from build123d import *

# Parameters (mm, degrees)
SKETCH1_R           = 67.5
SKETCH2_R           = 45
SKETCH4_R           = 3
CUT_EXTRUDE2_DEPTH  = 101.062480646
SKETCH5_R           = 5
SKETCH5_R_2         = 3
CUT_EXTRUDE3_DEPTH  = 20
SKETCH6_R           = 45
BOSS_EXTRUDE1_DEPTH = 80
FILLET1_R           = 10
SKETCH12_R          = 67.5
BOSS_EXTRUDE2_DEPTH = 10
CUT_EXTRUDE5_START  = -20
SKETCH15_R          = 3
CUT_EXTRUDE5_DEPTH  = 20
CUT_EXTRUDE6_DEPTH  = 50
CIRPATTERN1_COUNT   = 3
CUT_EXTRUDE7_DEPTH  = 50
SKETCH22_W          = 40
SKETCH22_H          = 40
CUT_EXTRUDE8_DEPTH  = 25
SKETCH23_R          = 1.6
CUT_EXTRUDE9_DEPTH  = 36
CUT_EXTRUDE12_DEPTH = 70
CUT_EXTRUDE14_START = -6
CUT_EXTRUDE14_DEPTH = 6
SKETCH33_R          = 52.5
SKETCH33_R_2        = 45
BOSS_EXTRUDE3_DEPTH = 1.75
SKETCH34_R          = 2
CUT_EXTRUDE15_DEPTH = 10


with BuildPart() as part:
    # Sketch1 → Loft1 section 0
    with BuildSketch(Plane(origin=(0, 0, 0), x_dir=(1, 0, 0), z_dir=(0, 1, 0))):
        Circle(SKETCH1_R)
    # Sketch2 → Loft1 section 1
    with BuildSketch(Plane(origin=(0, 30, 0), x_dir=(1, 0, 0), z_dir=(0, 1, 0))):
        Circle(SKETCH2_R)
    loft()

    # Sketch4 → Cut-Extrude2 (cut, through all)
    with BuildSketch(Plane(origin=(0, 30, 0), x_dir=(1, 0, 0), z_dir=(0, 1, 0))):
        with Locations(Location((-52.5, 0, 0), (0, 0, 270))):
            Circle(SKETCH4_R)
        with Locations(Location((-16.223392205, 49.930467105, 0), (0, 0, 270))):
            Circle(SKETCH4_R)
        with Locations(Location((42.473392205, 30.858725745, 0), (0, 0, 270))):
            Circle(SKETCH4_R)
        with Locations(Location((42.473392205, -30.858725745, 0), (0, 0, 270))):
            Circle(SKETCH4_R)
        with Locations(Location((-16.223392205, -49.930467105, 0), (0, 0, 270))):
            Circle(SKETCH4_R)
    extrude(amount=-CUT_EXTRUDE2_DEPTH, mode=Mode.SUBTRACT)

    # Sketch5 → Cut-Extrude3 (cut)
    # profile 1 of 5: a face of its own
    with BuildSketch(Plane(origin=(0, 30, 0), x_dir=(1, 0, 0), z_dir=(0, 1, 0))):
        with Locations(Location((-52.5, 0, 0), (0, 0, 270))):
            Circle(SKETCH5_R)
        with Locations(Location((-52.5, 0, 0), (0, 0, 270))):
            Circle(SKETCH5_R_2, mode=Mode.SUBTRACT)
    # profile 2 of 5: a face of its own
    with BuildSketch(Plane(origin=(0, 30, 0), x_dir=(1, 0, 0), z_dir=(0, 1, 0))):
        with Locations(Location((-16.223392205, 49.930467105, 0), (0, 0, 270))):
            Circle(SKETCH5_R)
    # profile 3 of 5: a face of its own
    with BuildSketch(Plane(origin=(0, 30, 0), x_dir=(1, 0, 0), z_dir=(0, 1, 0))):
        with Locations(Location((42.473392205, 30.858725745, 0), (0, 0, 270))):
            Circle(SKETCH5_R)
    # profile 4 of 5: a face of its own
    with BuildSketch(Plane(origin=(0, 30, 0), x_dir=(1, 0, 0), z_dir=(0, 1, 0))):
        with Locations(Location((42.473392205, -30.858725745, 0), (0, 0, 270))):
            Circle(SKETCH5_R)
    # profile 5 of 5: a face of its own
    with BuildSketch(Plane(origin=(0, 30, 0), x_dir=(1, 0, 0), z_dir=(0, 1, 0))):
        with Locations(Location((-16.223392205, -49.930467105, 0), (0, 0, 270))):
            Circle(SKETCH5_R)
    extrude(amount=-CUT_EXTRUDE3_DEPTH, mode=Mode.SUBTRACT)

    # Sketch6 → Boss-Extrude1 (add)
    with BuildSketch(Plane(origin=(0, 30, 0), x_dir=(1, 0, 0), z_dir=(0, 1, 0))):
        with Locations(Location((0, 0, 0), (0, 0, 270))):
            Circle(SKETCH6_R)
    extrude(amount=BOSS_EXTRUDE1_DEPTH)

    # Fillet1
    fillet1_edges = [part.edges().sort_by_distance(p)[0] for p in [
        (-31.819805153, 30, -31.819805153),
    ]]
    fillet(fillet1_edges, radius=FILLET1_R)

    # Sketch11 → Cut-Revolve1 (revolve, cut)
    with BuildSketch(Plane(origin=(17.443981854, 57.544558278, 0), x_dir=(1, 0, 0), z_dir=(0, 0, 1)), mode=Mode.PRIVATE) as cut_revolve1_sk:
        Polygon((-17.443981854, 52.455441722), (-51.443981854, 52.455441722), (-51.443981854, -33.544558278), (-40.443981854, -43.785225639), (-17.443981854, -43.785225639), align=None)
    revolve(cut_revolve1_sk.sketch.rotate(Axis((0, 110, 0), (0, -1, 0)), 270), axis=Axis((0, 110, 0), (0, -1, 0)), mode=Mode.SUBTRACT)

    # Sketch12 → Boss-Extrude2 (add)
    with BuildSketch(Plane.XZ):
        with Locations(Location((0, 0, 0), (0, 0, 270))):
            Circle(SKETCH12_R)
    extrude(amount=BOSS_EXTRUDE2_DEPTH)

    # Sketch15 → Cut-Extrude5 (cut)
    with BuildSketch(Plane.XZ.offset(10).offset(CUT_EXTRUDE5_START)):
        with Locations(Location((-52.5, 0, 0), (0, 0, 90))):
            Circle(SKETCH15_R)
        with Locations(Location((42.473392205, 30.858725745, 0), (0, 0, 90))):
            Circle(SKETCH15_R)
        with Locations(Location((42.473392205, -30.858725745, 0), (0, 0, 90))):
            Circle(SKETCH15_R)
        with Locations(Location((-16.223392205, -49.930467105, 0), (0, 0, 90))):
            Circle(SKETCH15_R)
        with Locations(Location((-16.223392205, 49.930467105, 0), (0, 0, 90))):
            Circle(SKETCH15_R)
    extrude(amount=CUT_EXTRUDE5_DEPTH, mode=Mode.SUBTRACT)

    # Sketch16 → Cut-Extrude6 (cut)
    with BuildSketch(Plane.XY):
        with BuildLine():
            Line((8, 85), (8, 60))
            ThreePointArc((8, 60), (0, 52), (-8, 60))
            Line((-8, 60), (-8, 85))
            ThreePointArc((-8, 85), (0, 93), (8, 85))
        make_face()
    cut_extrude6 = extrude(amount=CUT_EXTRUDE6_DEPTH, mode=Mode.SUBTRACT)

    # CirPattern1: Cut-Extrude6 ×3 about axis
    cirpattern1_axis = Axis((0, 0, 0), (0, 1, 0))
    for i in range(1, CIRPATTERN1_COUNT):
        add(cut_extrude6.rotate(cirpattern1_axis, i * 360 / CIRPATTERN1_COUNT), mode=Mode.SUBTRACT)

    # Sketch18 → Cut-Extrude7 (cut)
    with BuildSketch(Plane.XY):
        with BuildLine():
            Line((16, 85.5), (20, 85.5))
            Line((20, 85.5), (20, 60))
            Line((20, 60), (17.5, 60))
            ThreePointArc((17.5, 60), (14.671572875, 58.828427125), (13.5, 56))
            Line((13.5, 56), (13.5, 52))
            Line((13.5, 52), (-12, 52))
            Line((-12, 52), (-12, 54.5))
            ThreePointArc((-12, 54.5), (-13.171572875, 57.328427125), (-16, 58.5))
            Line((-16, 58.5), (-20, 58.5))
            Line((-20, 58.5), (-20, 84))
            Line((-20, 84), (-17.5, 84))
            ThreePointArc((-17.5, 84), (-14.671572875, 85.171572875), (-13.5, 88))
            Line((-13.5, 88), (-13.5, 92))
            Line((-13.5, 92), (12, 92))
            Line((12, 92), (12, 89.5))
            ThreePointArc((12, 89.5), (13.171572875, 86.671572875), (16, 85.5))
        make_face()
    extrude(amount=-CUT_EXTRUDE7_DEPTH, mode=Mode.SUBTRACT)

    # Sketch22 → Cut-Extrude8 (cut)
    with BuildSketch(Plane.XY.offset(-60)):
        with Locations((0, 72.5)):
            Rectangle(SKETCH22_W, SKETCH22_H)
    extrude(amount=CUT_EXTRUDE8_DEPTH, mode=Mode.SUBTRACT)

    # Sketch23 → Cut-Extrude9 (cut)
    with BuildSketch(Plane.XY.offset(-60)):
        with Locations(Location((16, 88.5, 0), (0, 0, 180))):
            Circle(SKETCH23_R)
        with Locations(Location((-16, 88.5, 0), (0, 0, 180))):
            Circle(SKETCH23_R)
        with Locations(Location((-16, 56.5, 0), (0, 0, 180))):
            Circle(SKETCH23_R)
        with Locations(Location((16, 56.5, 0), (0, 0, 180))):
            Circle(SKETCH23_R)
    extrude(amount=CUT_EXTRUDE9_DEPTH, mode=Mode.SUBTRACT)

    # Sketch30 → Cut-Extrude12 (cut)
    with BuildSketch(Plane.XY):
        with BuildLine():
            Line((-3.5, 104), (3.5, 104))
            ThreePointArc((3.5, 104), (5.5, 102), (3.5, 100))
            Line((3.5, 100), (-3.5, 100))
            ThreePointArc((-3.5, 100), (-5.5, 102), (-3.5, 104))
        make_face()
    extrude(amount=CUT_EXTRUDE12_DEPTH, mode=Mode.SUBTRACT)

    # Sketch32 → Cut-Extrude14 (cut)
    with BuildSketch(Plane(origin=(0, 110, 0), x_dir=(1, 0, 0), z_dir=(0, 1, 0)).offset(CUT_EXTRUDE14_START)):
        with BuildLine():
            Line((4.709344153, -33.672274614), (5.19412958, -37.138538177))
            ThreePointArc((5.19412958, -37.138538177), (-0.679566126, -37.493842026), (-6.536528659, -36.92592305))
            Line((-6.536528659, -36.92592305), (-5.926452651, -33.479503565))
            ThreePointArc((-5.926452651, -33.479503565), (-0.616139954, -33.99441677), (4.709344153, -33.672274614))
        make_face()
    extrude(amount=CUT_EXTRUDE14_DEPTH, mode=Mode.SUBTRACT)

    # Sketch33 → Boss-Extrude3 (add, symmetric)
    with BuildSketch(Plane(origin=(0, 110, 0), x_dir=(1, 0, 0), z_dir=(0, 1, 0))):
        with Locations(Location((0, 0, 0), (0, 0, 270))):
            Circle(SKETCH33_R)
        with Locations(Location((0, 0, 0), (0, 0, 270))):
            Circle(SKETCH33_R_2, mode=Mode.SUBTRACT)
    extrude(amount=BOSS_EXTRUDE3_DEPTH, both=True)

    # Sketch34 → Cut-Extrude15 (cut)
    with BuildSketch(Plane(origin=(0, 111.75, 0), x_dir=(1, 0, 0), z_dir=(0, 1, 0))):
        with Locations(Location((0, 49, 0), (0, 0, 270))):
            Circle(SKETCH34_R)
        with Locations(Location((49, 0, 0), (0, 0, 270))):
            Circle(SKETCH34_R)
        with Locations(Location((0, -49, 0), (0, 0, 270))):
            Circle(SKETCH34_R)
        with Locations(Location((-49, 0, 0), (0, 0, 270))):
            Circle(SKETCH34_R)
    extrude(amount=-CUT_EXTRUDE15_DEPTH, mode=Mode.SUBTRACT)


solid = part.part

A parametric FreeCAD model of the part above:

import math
import FreeCAD as App
import Part
import Sketcher
Q = App.Units.Quantity


def edges_at(feature, points):
    """Names of the edges that pass closest to the given points."""
    edges = feature.Shape.Edges
    near = lambda p: min(range(len(edges)), key=lambda i: edges[i].distToShape(Part.Vertex(*p))[0])
    return sorted({f"Edge{near(p) + 1}" for p in points})

doc = App.newDocument("Part")
body = doc.addObject("PartDesign::Body", "Body")

# Sketch on XZ plane
sketch1 = body.newObject("Sketcher::SketchObject", "Sketch")
sketch1.AttachmentSupport = (doc.getObject("XZ_Plane"), [""])
sketch1.MapMode = "FlatFace"
sketch1.addGeometry(Part.Circle(App.Vector(0, 0, 0), App.Vector(0, 0, 1), 68), False)
sketch1.addConstraint(Sketcher.Constraint("Coincident", 0, 3, -1, 1))
sketch1.addConstraint(Sketcher.Constraint("Diameter", 0, Q("135 mm")))

# Sketch on XZ plane
sketch2 = body.newObject("Sketcher::SketchObject", "Sketch001")
sketch2.AttachmentSupport = (doc.getObject("XZ_Plane"), [""])
sketch2.MapMode = "FlatFace"
sketch2.AttachmentOffset = App.Placement(App.Vector(0, 0, -30), App.Rotation())
sketch2.addGeometry(Part.Circle(App.Vector(0, 0, 0), App.Vector(0, 0, 1), 45), False)
sketch2.addConstraint(Sketcher.Constraint("Coincident", 0, 3, -1, 1))
sketch2.addConstraint(Sketcher.Constraint("Diameter", 0, Q("90 mm")))

additiveloft = body.newObject("PartDesign::AdditiveLoft", "AdditiveLoft")
additiveloft.Profile = sketch1
additiveloft.Sections = [sketch2]

# Sketch on XZ plane
sketch3 = body.newObject("Sketcher::SketchObject", "Sketch002")
sketch3.AttachmentSupport = (doc.getObject("XZ_Plane"), [""])
sketch3.MapMode = "FlatFace"
sketch3.AttachmentOffset = App.Placement(App.Vector(0, 0, -30), App.Rotation())
sketch3.addGeometry(Part.Circle(App.Vector(-52.5, 0, 0), App.Vector(0, 0, 1), 3), False)
sketch3.addGeometry(Part.Circle(App.Vector(-16.2, -49.9, 0), App.Vector(0, 0, 1), 3), False)
sketch3.addGeometry(Part.Circle(App.Vector(42.5, -30.9, 0), App.Vector(0, 0, 1), 3), False)
sketch3.addGeometry(Part.Circle(App.Vector(42.5, 30.9, 0), App.Vector(0, 0, 1), 3), False)
sketch3.addGeometry(Part.Circle(App.Vector(-16.2, 49.9, 0), App.Vector(0, 0, 1), 3), False)
sketch3.addConstraint(Sketcher.Constraint("Equal", 0, 1))
sketch3.addConstraint(Sketcher.Constraint("Equal", 1, 2))
sketch3.addConstraint(Sketcher.Constraint("Equal", 2, 3))
sketch3.addConstraint(Sketcher.Constraint("Equal", 3, 4))
sketch3.addConstraint(Sketcher.Constraint("Symmetric", 2, 3, 3, 3, -1))
sketch3.addConstraint(Sketcher.Constraint("Symmetric", 1, 3, 4, 3, -1))
sketch3.addConstraint(Sketcher.Constraint("PointOnObject", 0, 3, -1))
sketch3.addConstraint(Sketcher.Constraint("Diameter", 0, Q("6 mm")))
sketch3.addConstraint(Sketcher.Constraint("DistanceX", 0, 3, -1, 1, Q("52.5 mm")))
sketch3.addConstraint(Sketcher.Constraint("DistanceY", 1, 3, 2, 3, Q("19.071741 mm")))
sketch3.addConstraint(Sketcher.Constraint("DistanceY", 2, 3, 3, 3, Q("61.717451 mm")))
sketch3.addConstraint(Sketcher.Constraint("DistanceX", 1, 3, -1, 1, Q("16.223392 mm")))
sketch3.addConstraint(Sketcher.Constraint("DistanceX", -1, 1, 2, 3, Q("42.473392 mm")))
pocket1 = body.newObject("PartDesign::Pocket", "Pocket")
pocket1.Profile = sketch3
pocket1.Type = "ThroughAll"
pocket1.Reversed = True

# Sketch on XZ plane
sketch4 = body.newObject("Sketcher::SketchObject", "Sketch003")
sketch4.AttachmentSupport = (doc.getObject("XZ_Plane"), [""])
sketch4.MapMode = "FlatFace"
sketch4.AttachmentOffset = App.Placement(App.Vector(0, 0, -30), App.Rotation())
sketch4.addGeometry(Part.Circle(App.Vector(-52.5, 0, 0), App.Vector(0, 0, 1), 5), False)
sketch4.addGeometry(Part.Circle(App.Vector(-52.5, 0, 0), App.Vector(0, 0, 1), 3), False)
sketch4.addGeometry(Part.Circle(App.Vector(-16.2, -49.9, 0), App.Vector(0, 0, 1), 5), False)
sketch4.addGeometry(Part.Circle(App.Vector(42.5, -30.9, 0), App.Vector(0, 0, 1), 5), False)
sketch4.addGeometry(Part.Circle(App.Vector(42.5, 30.9, 0), App.Vector(0, 0, 1), 5), False)
sketch4.addGeometry(Part.Circle(App.Vector(-16.2, 49.9, 0), App.Vector(0, 0, 1), 5), False)
sketch4.addConstraint(Sketcher.Constraint("Coincident", 1, 3, 0, 3))
sketch4.addConstraint(Sketcher.Constraint("Equal", 0, 2))
sketch4.addConstraint(Sketcher.Constraint("Equal", 2, 3))
sketch4.addConstraint(Sketcher.Constraint("Equal", 3, 4))
sketch4.addConstraint(Sketcher.Constraint("Equal", 4, 5))
sketch4.addConstraint(Sketcher.Constraint("Symmetric", 3, 3, 4, 3, -1))
sketch4.addConstraint(Sketcher.Constraint("Symmetric", 2, 3, 5, 3, -1))
sketch4.addConstraint(Sketcher.Constraint("PointOnObject", 0, 3, -1))
sketch4.addConstraint(Sketcher.Constraint("Diameter", 0, Q("10 mm")))
sketch4.addConstraint(Sketcher.Constraint("Diameter", 1, Q("6 mm")))
sketch4.addConstraint(Sketcher.Constraint("DistanceX", 0, 3, -1, 1, Q("52.5 mm")))
sketch4.addConstraint(Sketcher.Constraint("DistanceY", 2, 3, 3, 3, Q("19.071741 mm")))
sketch4.addConstraint(Sketcher.Constraint("DistanceY", 3, 3, 4, 3, Q("61.717451 mm")))
sketch4.addConstraint(Sketcher.Constraint("DistanceX", 2, 3, -1, 1, Q("16.223392 mm")))
sketch4.addConstraint(Sketcher.Constraint("DistanceX", -1, 1, 3, 3, Q("42.473392 mm")))
pocket2 = body.newObject("PartDesign::Pocket", "Pocket001")
pocket2.Profile = sketch4
pocket2.Length = 20
pocket2.Reversed = True

# Sketch on XZ plane
sketch5 = body.newObject("Sketcher::SketchObject", "Sketch004")
sketch5.AttachmentSupport = (doc.getObject("XZ_Plane"), [""])
sketch5.MapMode = "FlatFace"
sketch5.AttachmentOffset = App.Placement(App.Vector(0, 0, -30), App.Rotation())
sketch5.addGeometry(Part.Circle(App.Vector(0, 0, 0), App.Vector(0, 0, 1), 45), False)
sketch5.addConstraint(Sketcher.Constraint("Coincident", 0, 3, -1, 1))
sketch5.addConstraint(Sketcher.Constraint("Diameter", 0, Q("90 mm")))
pad1 = body.newObject("PartDesign::Pad", "Pad")
pad1.Profile = sketch5
pad1.Length = 80
pad1.Reversed = True
doc.recompute()

fillet = body.newObject("PartDesign::Fillet", "Fillet")
fillet.Base = (pad1, edges_at(pad1, [(-31.82, 30, -31.82)]))
fillet.Radius = 10

# Sketch on XY plane
sketch6 = body.newObject("Sketcher::SketchObject", "Sketch005")
sketch6.AttachmentSupport = (doc.getObject("XY_Plane"), [""])
sketch6.MapMode = "FlatFace"
sketch6.addGeometry(Part.LineSegment(App.Vector(0, 110, 0), App.Vector(-34, 110, 0)), False)
sketch6.addGeometry(Part.LineSegment(App.Vector(-34, 110, 0), App.Vector(-34, 24, 0)), False)
sketch6.addGeometry(Part.LineSegment(App.Vector(-34, 24, 0), App.Vector(-23, 14, 0)), False)
sketch6.addGeometry(Part.LineSegment(App.Vector(-23, 14, 0), App.Vector(0, 14, 0)), False)
sketch6.addGeometry(Part.LineSegment(App.Vector(0, 14, 0), App.Vector(0, 110, 0)), False)
sketch6.addConstraint(Sketcher.Constraint("Coincident", 0, 2, 1, 1))
sketch6.addConstraint(Sketcher.Constraint("Coincident", 1, 2, 2, 1))
sketch6.addConstraint(Sketcher.Constraint("Coincident", 2, 2, 3, 1))
sketch6.addConstraint(Sketcher.Constraint("Coincident", 3, 2, 4, 1))
sketch6.addConstraint(Sketcher.Constraint("Coincident", 4, 2, 0, 1))
sketch6.addConstraint(Sketcher.Constraint("Horizontal", 0))
sketch6.addConstraint(Sketcher.Constraint("Vertical", 1))
sketch6.addConstraint(Sketcher.Constraint("Horizontal", 3))
sketch6.addConstraint(Sketcher.Constraint("Vertical", 4))
sketch6.addConstraint(Sketcher.Constraint("PointOnObject", 3, 2, -2))
sketch6.addConstraint(Sketcher.Constraint("DistanceX", 0, 2, 0, 1, Q("34 mm")))
sketch6.addConstraint(Sketcher.Constraint("DistanceX", 3, 1, 3, 2, Q("23 mm")))
sketch6.addConstraint(Sketcher.Constraint("DistanceY", 1, 2, 1, 1, Q("86 mm")))
sketch6.addConstraint(Sketcher.Constraint("DistanceY", -1, 1, 0, 2, Q("110 mm")))
sketch6.addConstraint(Sketcher.Constraint("DistanceY", 4, 1, 4, 2, Q("96.240667 mm")))
groove = body.newObject("PartDesign::Groove", "Groove")
groove.Profile = sketch6
groove.ReferenceAxis = (sketch6, ["V_Axis"])
groove.Angle = 360

# Sketch on XZ plane
sketch7 = body.newObject("Sketcher::SketchObject", "Sketch006")
sketch7.AttachmentSupport = (doc.getObject("XZ_Plane"), [""])
sketch7.MapMode = "FlatFace"
sketch7.addGeometry(Part.Circle(App.Vector(0, 0, 0), App.Vector(0, 0, 1), 68), False)
sketch7.addConstraint(Sketcher.Constraint("Coincident", 0, 3, -1, 1))
sketch7.addConstraint(Sketcher.Constraint("Diameter", 0, Q("135 mm")))
pad2 = body.newObject("PartDesign::Pad", "Pad001")
pad2.Profile = sketch7
pad2.Length = 10

# Sketch on XZ plane
sketch8 = body.newObject("Sketcher::SketchObject", "Sketch007")
sketch8.AttachmentSupport = (doc.getObject("XZ_Plane"), [""])
sketch8.MapMode = "FlatFace"
sketch8.AttachmentOffset = App.Placement(App.Vector(0, 0, -10), App.Rotation())
sketch8.addGeometry(Part.Circle(App.Vector(-52.5, 0, 0), App.Vector(0, 0, 1), 3), False)
sketch8.addGeometry(Part.Circle(App.Vector(42.5, 30.9, 0), App.Vector(0, 0, 1), 3), False)
sketch8.addGeometry(Part.Circle(App.Vector(42.5, -30.9, 0), App.Vector(0, 0, 1), 3), False)
sketch8.addGeometry(Part.Circle(App.Vector(-16.2, -49.9, 0), App.Vector(0, 0, 1), 3), False)
sketch8.addGeometry(Part.Circle(App.Vector(-16.2, 49.9, 0), App.Vector(0, 0, 1), 3), False)
sketch8.addConstraint(Sketcher.Constraint("Equal", 0, 1))
sketch8.addConstraint(Sketcher.Constraint("Equal", 1, 2))
sketch8.addConstraint(Sketcher.Constraint("Equal", 2, 3))
sketch8.addConstraint(Sketcher.Constraint("Equal", 3, 4))
sketch8.addConstraint(Sketcher.Constraint("Symmetric", 1, 3, 2, 3, -1))
sketch8.addConstraint(Sketcher.Constraint("Symmetric", 3, 3, 4, 3, -1))
sketch8.addConstraint(Sketcher.Constraint("PointOnObject", 0, 3, -1))
sketch8.addConstraint(Sketcher.Constraint("Diameter", 0, Q("6 mm")))
sketch8.addConstraint(Sketcher.Constraint("DistanceX", 0, 3, -1, 1, Q("52.5 mm")))
sketch8.addConstraint(Sketcher.Constraint("DistanceY", 2, 3, 1, 3, Q("61.717451 mm")))
sketch8.addConstraint(Sketcher.Constraint("DistanceY", 3, 3, 2, 3, Q("19.071741 mm")))
sketch8.addConstraint(Sketcher.Constraint("DistanceX", -1, 1, 1, 3, Q("42.473392 mm")))
sketch8.addConstraint(Sketcher.Constraint("DistanceX", 3, 3, -1, 1, Q("16.223392 mm")))
pocket3 = body.newObject("PartDesign::Pocket", "Pocket002")
pocket3.Profile = sketch8
pocket3.Length = 20
pocket3.Reversed = True

# Sketch on XY plane
sketch9 = body.newObject("Sketcher::SketchObject", "Sketch008")
sketch9.AttachmentSupport = (doc.getObject("XY_Plane"), [""])
sketch9.MapMode = "FlatFace"
sketch9.addGeometry(Part.LineSegment(App.Vector(8, 60, 0), App.Vector(8, 85, 0)), False)
sketch9.addGeometry(Part.ArcOfCircle(Part.Circle(App.Vector(0, 85, 0), App.Vector(0, 0, 1), 8), math.radians(0), math.radians(180)), False)
sketch9.addGeometry(Part.LineSegment(App.Vector(-8, 85, 0), App.Vector(-8, 60, 0)), False)
sketch9.addGeometry(Part.ArcOfCircle(Part.Circle(App.Vector(0, 60, 0), App.Vector(0, 0, 1), 8), math.radians(180), math.radians(360)), False)
sketch9.addConstraint(Sketcher.Constraint("Tangent", 0, 2, 1, 1))
sketch9.addConstraint(Sketcher.Constraint("Tangent", 1, 2, 2, 1))
sketch9.addConstraint(Sketcher.Constraint("Tangent", 2, 2, 3, 1))
sketch9.addConstraint(Sketcher.Constraint("Tangent", 3, 2, 0, 1))
sketch9.addConstraint(Sketcher.Constraint("Vertical", 0))
sketch9.addConstraint(Sketcher.Constraint("Vertical", 2))
sketch9.addConstraint(Sketcher.Constraint("PointOnObject", 1, 3, -2))
sketch9.addConstraint(Sketcher.Constraint("Radius", 1, Q("8 mm")))
sketch9.addConstraint(Sketcher.Constraint("DistanceY", 0, 1, 0, 2, Q("25 mm")))
sketch9.addConstraint(Sketcher.Constraint("DistanceY", -1, 1, 1, 3, Q("85 mm")))
pocket4 = body.newObject("PartDesign::Pocket", "Pocket003")
pocket4.Profile = sketch9
pocket4.Length = 50
pocket4.Reversed = True
doc.recompute()

polarpattern = body.newObject("PartDesign::PolarPattern", "PolarPattern")
polarpattern.Originals = [pocket4]
polarpattern.Axis = (doc.getObject("Y_Axis"), [""])
polarpattern.Angle = 360
polarpattern.Occurrences = 3
body.Tip = polarpattern

# Sketch on XY plane
sketch10 = body.newObject("Sketcher::SketchObject", "Sketch009")
sketch10.AttachmentSupport = (doc.getObject("XY_Plane"), [""])
sketch10.MapMode = "FlatFace"
sketch10.addGeometry(Part.LineSegment(App.Vector(20, 85.5, 0), App.Vector(16, 85.5, 0)), False)
sketch10.addGeometry(Part.ArcOfCircle(Part.Circle(App.Vector(16, 89.5, 0), App.Vector(0, 0, 1), 4), math.radians(180), math.radians(270)), False)
sketch10.addGeometry(Part.LineSegment(App.Vector(12, 89.5, 0), App.Vector(12, 92, 0)), False)
sketch10.addGeometry(Part.LineSegment(App.Vector(12, 92, 0), App.Vector(-13.5, 92, 0)), False)
sketch10.addGeometry(Part.LineSegment(App.Vector(-13.5, 92, 0), App.Vector(-13.5, 88, 0)), False)
sketch10.addGeometry(Part.ArcOfCircle(Part.Circle(App.Vector(-17.5, 88, 0), App.Vector(0, 0, 1), 4), math.radians(-90), math.radians(0)), False)
sketch10.addGeometry(Part.LineSegment(App.Vector(-17.5, 84, 0), App.Vector(-20, 84, 0)), False)
sketch10.addGeometry(Part.LineSegment(App.Vector(-20, 84, 0), App.Vector(-20, 58.5, 0)), False)
sketch10.addGeometry(Part.LineSegment(App.Vector(-20, 58.5, 0), App.Vector(-16, 58.5, 0)), False)
sketch10.addGeometry(Part.ArcOfCircle(Part.Circle(App.Vector(-16, 54.5, 0), App.Vector(0, 0, 1), 4), math.radians(0), math.radians(90)), False)
sketch10.addGeometry(Part.LineSegment(App.Vector(-12, 54.5, 0), App.Vector(-12, 52, 0)), False)
sketch10.addGeometry(Part.LineSegment(App.Vector(-12, 52, 0), App.Vector(13.5, 52, 0)), False)
sketch10.addGeometry(Part.LineSegment(App.Vector(13.5, 52, 0), App.Vector(13.5, 56, 0)), False)
sketch10.addGeometry(Part.ArcOfCircle(Part.Circle(App.Vector(17.5, 56, 0), App.Vector(0, 0, 1), 4), math.radians(90), math.radians(180)), False)
sketch10.addGeometry(Part.LineSegment(App.Vector(17.5, 60, 0), App.Vector(20, 60, 0)), False)
sketch10.addGeometry(Part.LineSegment(App.Vector(20, 60, 0), App.Vector(20, 85.5, 0)), False)
sketch10.addConstraint(Sketcher.Constraint("Tangent", 0, 2, 1, 2))
sketch10.addConstraint(Sketcher.Constraint("Tangent", 1, 1, 2, 1))
sketch10.addConstraint(Sketcher.Constraint("Coincident", 2, 2, 3, 1))
sketch10.addConstraint(Sketcher.Constraint("Coincident", 3, 2, 4, 1))
sketch10.addConstraint(Sketcher.Constraint("Tangent", 4, 2, 5, 2))
sketch10.addConstraint(Sketcher.Constraint("Tangent", 5, 1, 6, 1))
sketch10.addConstraint(Sketcher.Constraint("Coincident", 6, 2, 7, 1))
sketch10.addConstraint(Sketcher.Constraint("Coincident", 7, 2, 8, 1))
sketch10.addConstraint(Sketcher.Constraint("Tangent", 8, 2, 9, 2))
sketch10.addConstraint(Sketcher.Constraint("Tangent", 9, 1, 10, 1))
sketch10.addConstraint(Sketcher.Constraint("Coincident", 10, 2, 11, 1))
sketch10.addConstraint(Sketcher.Constraint("Coincident", 11, 2, 12, 1))
sketch10.addConstraint(Sketcher.Constraint("Tangent", 12, 2, 13, 2))
sketch10.addConstraint(Sketcher.Constraint("Tangent", 13, 1, 14, 1))
sketch10.addConstraint(Sketcher.Constraint("Coincident", 14, 2, 15, 1))
sketch10.addConstraint(Sketcher.Constraint("Coincident", 15, 2, 0, 1))
sketch10.addConstraint(Sketcher.Constraint("Horizontal", 0))
sketch10.addConstraint(Sketcher.Constraint("Vertical", 2))
sketch10.addConstraint(Sketcher.Constraint("Horizontal", 3))
sketch10.addConstraint(Sketcher.Constraint("Vertical", 4))
sketch10.addConstraint(Sketcher.Constraint("Horizontal", 6))
sketch10.addConstraint(Sketcher.Constraint("Vertical", 7))
sketch10.addConstraint(Sketcher.Constraint("Horizontal", 8))
sketch10.addConstraint(Sketcher.Constraint("Vertical", 10))
sketch10.addConstraint(Sketcher.Constraint("Horizontal", 11))
sketch10.addConstraint(Sketcher.Constraint("Vertical", 12))
sketch10.addConstraint(Sketcher.Constraint("Horizontal", 14))
sketch10.addConstraint(Sketcher.Constraint("Vertical", 15))
sketch10.addConstraint(Sketcher.Constraint("Equal", 1, 5))
sketch10.addConstraint(Sketcher.Constraint("Equal", 5, 9))
sketch10.addConstraint(Sketcher.Constraint("Equal", 9, 13))
sketch10.addConstraint(Sketcher.Constraint("Equal", 0, 8))
sketch10.addConstraint(Sketcher.Constraint("Equal", 3, 11))
sketch10.addConstraint(Sketcher.Constraint("Equal", 14, 2))
sketch10.addConstraint(Sketcher.Constraint("Equal", 8, 4))
sketch10.addConstraint(Sketcher.Constraint("Equal", 11, 7))
sketch10.addConstraint(Sketcher.Constraint("Equal", 2, 10))
sketch10.addConstraint(Sketcher.Constraint("Equal", 4, 12))
sketch10.addConstraint(Sketcher.Constraint("Radius", 1, Q("4 mm")))
sketch10.addConstraint(Sketcher.Constraint("DistanceX", 0, 2, 0, 1, Q("4 mm")))
sketch10.addConstraint(Sketcher.Constraint("DistanceX", 3, 2, 3, 1, Q("25.5 mm")))
sketch10.addConstraint(Sketcher.Constraint("DistanceX", 6, 2, 6, 1, Q("2.5 mm")))
sketch10.addConstraint(Sketcher.Constraint("DistanceX", -1, 1, 1, 3, Q("16 mm")))
sketch10.addConstraint(Sketcher.Constraint("DistanceY", -1, 1, 5, 3, Q("88 mm")))
pocket5 = body.newObject("PartDesign::Pocket", "Pocket004")
pocket5.Profile = sketch10
pocket5.Length = 50

# Sketch on XY plane
sketch11 = body.newObject("Sketcher::SketchObject", "Sketch010")
sketch11.AttachmentSupport = (doc.getObject("XY_Plane"), [""])
sketch11.MapMode = "FlatFace"
sketch11.AttachmentOffset = App.Placement(App.Vector(0, 0, -60), App.Rotation())
sketch11.addGeometry(Part.LineSegment(App.Vector(-20, 92, 0), App.Vector(-20, 52, 0)), False)
sketch11.addGeometry(Part.LineSegment(App.Vector(-20, 52, 0), App.Vector(20, 52, 0)), False)
sketch11.addGeometry(Part.LineSegment(App.Vector(20, 52, 0), App.Vector(20, 92, 0)), False)
sketch11.addGeometry(Part.LineSegment(App.Vector(20, 92, 0), App.Vector(-20, 92, 0)), False)
sketch11.addConstraint(Sketcher.Constraint("Coincident", 0, 2, 1, 1))
sketch11.addConstraint(Sketcher.Constraint("Coincident", 1, 2, 2, 1))
sketch11.addConstraint(Sketcher.Constraint("Coincident", 2, 2, 3, 1))
sketch11.addConstraint(Sketcher.Constraint("Coincident", 3, 2, 0, 1))
sketch11.addConstraint(Sketcher.Constraint("Vertical", 0))
sketch11.addConstraint(Sketcher.Constraint("Horizontal", 1))
sketch11.addConstraint(Sketcher.Constraint("Vertical", 2))
sketch11.addConstraint(Sketcher.Constraint("Horizontal", 3))
sketch11.addConstraint(Sketcher.Constraint("Equal", 3, 0))
sketch11.addConstraint(Sketcher.Constraint("DistanceX", 1, 1, 1, 2, Q("40 mm")))
sketch11.addConstraint(Sketcher.Constraint("DistanceX", 0, 2, -1, 1, Q("20 mm")))
sketch11.addConstraint(Sketcher.Constraint("DistanceY", -1, 1, 0, 2, Q("52.5 mm")))
pocket6 = body.newObject("PartDesign::Pocket", "Pocket005")
pocket6.Profile = sketch11
pocket6.Length = 25
pocket6.Reversed = True

# Sketch on XY plane
sketch12 = body.newObject("Sketcher::SketchObject", "Sketch011")
sketch12.AttachmentSupport = (doc.getObject("XY_Plane"), [""])
sketch12.MapMode = "FlatFace"
sketch12.AttachmentOffset = App.Placement(App.Vector(0, 0, -60), App.Rotation())
sketch12.addGeometry(Part.Circle(App.Vector(16, 88.5, 0), App.Vector(0, 0, 1), 1.6), False)
sketch12.addGeometry(Part.Circle(App.Vector(-16, 88.5, 0), App.Vector(0, 0, 1), 1.6), False)
sketch12.addGeometry(Part.Circle(App.Vector(-16, 56.5, 0), App.Vector(0, 0, 1), 1.6), False)
sketch12.addGeometry(Part.Circle(App.Vector(16, 56.5, 0), App.Vector(0, 0, 1), 1.6), False)
sketch12.addConstraint(Sketcher.Constraint("Equal", 0, 1))
sketch12.addConstraint(Sketcher.Constraint("Equal", 1, 2))
sketch12.addConstraint(Sketcher.Constraint("Equal", 2, 3))
sketch12.addConstraint(Sketcher.Constraint("Symmetric", 0, 3, 1, 3, -2))
sketch12.addConstraint(Sketcher.Constraint("Symmetric", 2, 3, 3, 3, -2))
sketch12.addConstraint(Sketcher.Constraint("Vertical", 1, 3, 2, 3))
sketch12.addConstraint(Sketcher.Constraint("Diameter", 0, Q("3.2 mm")))
sketch12.addConstraint(Sketcher.Constraint("DistanceX", -1, 1, 0, 3, Q("16 mm")))
sketch12.addConstraint(Sketcher.Constraint("DistanceY", 2, 3, 1, 3, Q("32 mm")))
sketch12.addConstraint(Sketcher.Constraint("DistanceY", -1, 1, 0, 3, Q("88.5 mm")))
pocket7 = body.newObject("PartDesign::Pocket", "Pocket006")
pocket7.Profile = sketch12
pocket7.Length = 36
pocket7.Reversed = True

# Sketch on XY plane
sketch13 = body.newObject("Sketcher::SketchObject", "Sketch012")
sketch13.AttachmentSupport = (doc.getObject("XY_Plane"), [""])
sketch13.MapMode = "FlatFace"
sketch13.addGeometry(Part.LineSegment(App.Vector(3.5, 104, 0), App.Vector(-3.5, 104, 0)), False)
sketch13.addGeometry(Part.ArcOfCircle(Part.Circle(App.Vector(-3.5, 102, 0), App.Vector(0, 0, 1), 2), math.radians(90), math.radians(270)), False)
sketch13.addGeometry(Part.LineSegment(App.Vector(-3.5, 100, 0), App.Vector(3.5, 100, 0)), False)
sketch13.addGeometry(Part.ArcOfCircle(Part.Circle(App.Vector(3.5, 102, 0), App.Vector(0, 0, 1), 2), math.radians(-90), math.radians(90)), False)
sketch13.addConstraint(Sketcher.Constraint("Tangent", 0, 2, 1, 1))
sketch13.addConstraint(Sketcher.Constraint("Tangent", 1, 2, 2, 1))
sketch13.addConstraint(Sketcher.Constraint("Tangent", 2, 2, 3, 1))
sketch13.addConstraint(Sketcher.Constraint("Tangent", 3, 2, 0, 1))
sketch13.addConstraint(Sketcher.Constraint("Horizontal", 0))
sketch13.addConstraint(Sketcher.Constraint("Horizontal", 2))
sketch13.addConstraint(Sketcher.Constraint("Radius", 1, Q("2 mm")))
sketch13.addConstraint(Sketcher.Constraint("DistanceX", 0, 2, 0, 1, Q("7 mm")))
sketch13.addConstraint(Sketcher.Constraint("DistanceY", -1, 1, 1, 3, Q("102 mm")))
sketch13.addConstraint(Sketcher.Constraint("DistanceX", 1, 3, -1, 1, Q("3.5 mm")))
pocket8 = body.newObject("PartDesign::Pocket", "Pocket007")
pocket8.Profile = sketch13
pocket8.Length = 70
pocket8.Reversed = True

# Sketch on XZ plane
sketch14 = body.newObject("Sketcher::SketchObject", "Sketch013")
sketch14.AttachmentSupport = (doc.getObject("XZ_Plane"), [""])
sketch14.MapMode = "FlatFace"
sketch14.AttachmentOffset = App.Placement(App.Vector(0, 0, -104), App.Rotation())
sketch14.addGeometry(Part.LineSegment(App.Vector(5.2, 37.1, 0), App.Vector(4.7, 33.7, 0)), False)
sketch14.addGeometry(Part.ArcOfCircle(Part.Circle(App.Vector(0, 0, 0), App.Vector(0, 0, 1), 34), math.radians(82.04), math.radians(100.04)), False)
sketch14.addGeometry(Part.LineSegment(App.Vector(-5.9, 33.5, 0), App.Vector(-6.5, 36.9, 0)), False)
sketch14.addGeometry(Part.ArcOfCircle(Part.Circle(App.Vector(0, 0, 0), App.Vector(0, 0, 1), 37.5), math.radians(82.04), math.radians(100.04)), False)
sketch14.addConstraint(Sketcher.Constraint("Coincident", 0, 2, 1, 1))
sketch14.addConstraint(Sketcher.Constraint("Coincident", 1, 2, 2, 1))
sketch14.addConstraint(Sketcher.Constraint("Coincident", 2, 2, 3, 2))
sketch14.addConstraint(Sketcher.Constraint("Coincident", 3, 1, 0, 1))
sketch14.addConstraint(Sketcher.Constraint("Coincident", 1, 3, -1, 1))
sketch14.addConstraint(Sketcher.Constraint("Coincident", 3, 3, -1, 1))
sketch14.addConstraint(Sketcher.Constraint("Radius", 1, Q("34 mm")))
sketch14.addConstraint(Sketcher.Constraint("Radius", 3, Q("37.5 mm")))
sketch14.addConstraint(Sketcher.Constraint("DistanceX", 2, 2, -1, 1, Q("6.536529 mm")))
sketch14.addConstraint(Sketcher.Constraint("DistanceX", -1, 1, 3, 1, Q("5.19413 mm")))
sketch14.addConstraint(Sketcher.Constraint("DistanceY", 1, 2, 0, 2, Q("0.192771 mm")))
sketch14.addConstraint(Sketcher.Constraint("DistanceY", 1, 2, 2, 2, Q("3.446419 mm")))
pocket9 = body.newObject("PartDesign::Pocket", "Pocket008")
pocket9.Profile = sketch14
pocket9.Length = 6

# Sketch on XZ plane
sketch15 = body.newObject("Sketcher::SketchObject", "Sketch014")
sketch15.AttachmentSupport = (doc.getObject("XZ_Plane"), [""])
sketch15.MapMode = "FlatFace"
sketch15.AttachmentOffset = App.Placement(App.Vector(0, 0, -110), App.Rotation())
sketch15.addGeometry(Part.Circle(App.Vector(0, 0, 0), App.Vector(0, 0, 1), 52), False)
sketch15.addGeometry(Part.Circle(App.Vector(0, 0, 0), App.Vector(0, 0, 1), 45), False)
sketch15.addConstraint(Sketcher.Constraint("Coincident", 0, 3, -1, 1))
sketch15.addConstraint(Sketcher.Constraint("Coincident", 1, 3, -1, 1))
sketch15.addConstraint(Sketcher.Constraint("Diameter", 0, Q("105 mm")))
sketch15.addConstraint(Sketcher.Constraint("Diameter", 1, Q("90 mm")))
pad3 = body.newObject("PartDesign::Pad", "Pad002")
pad3.Profile = sketch15
pad3.Length = 3.5
pad3.Midplane = True

# Sketch on XZ plane
sketch16 = body.newObject("Sketcher::SketchObject", "Sketch015")
sketch16.AttachmentSupport = (doc.getObject("XZ_Plane"), [""])
sketch16.MapMode = "FlatFace"
sketch16.AttachmentOffset = App.Placement(App.Vector(0, 0, -111.75), App.Rotation())
sketch16.addGeometry(Part.Circle(App.Vector(0, -49, 0), App.Vector(0, 0, 1), 2), False)
sketch16.addGeometry(Part.Circle(App.Vector(49, 0, 0), App.Vector(0, 0, 1), 2), False)
sketch16.addGeometry(Part.Circle(App.Vector(0, 49, 0), App.Vector(0, 0, 1), 2), False)
sketch16.addGeometry(Part.Circle(App.Vector(-49, 0, 0), App.Vector(0, 0, 1), 2), False)
sketch16.addConstraint(Sketcher.Constraint("Equal", 0, 1))
sketch16.addConstraint(Sketcher.Constraint("Equal", 1, 2))
sketch16.addConstraint(Sketcher.Constraint("Equal", 2, 3))
sketch16.addConstraint(Sketcher.Constraint("Symmetric", 0, 3, 2, 3, -1, 1))
sketch16.addConstraint(Sketcher.Constraint("Symmetric", 1, 3, 3, 3, -1, 1))
sketch16.addConstraint(Sketcher.Constraint("PointOnObject", 0, 3, -2))
sketch16.addConstraint(Sketcher.Constraint("PointOnObject", 1, 3, -1))
sketch16.addConstraint(Sketcher.Constraint("Diameter", 0, Q("4 mm")))
sketch16.addConstraint(Sketcher.Constraint("DistanceY", 0, 3, -1, 1, Q("49 mm")))
sketch16.addConstraint(Sketcher.Constraint("DistanceX", -1, 1, 1, 3, Q("49 mm")))
pocket10 = body.newObject("PartDesign::Pocket", "Pocket009")
pocket10.Profile = sketch16
pocket10.Length = 10
pocket10.Reversed = True

doc.recompute()
